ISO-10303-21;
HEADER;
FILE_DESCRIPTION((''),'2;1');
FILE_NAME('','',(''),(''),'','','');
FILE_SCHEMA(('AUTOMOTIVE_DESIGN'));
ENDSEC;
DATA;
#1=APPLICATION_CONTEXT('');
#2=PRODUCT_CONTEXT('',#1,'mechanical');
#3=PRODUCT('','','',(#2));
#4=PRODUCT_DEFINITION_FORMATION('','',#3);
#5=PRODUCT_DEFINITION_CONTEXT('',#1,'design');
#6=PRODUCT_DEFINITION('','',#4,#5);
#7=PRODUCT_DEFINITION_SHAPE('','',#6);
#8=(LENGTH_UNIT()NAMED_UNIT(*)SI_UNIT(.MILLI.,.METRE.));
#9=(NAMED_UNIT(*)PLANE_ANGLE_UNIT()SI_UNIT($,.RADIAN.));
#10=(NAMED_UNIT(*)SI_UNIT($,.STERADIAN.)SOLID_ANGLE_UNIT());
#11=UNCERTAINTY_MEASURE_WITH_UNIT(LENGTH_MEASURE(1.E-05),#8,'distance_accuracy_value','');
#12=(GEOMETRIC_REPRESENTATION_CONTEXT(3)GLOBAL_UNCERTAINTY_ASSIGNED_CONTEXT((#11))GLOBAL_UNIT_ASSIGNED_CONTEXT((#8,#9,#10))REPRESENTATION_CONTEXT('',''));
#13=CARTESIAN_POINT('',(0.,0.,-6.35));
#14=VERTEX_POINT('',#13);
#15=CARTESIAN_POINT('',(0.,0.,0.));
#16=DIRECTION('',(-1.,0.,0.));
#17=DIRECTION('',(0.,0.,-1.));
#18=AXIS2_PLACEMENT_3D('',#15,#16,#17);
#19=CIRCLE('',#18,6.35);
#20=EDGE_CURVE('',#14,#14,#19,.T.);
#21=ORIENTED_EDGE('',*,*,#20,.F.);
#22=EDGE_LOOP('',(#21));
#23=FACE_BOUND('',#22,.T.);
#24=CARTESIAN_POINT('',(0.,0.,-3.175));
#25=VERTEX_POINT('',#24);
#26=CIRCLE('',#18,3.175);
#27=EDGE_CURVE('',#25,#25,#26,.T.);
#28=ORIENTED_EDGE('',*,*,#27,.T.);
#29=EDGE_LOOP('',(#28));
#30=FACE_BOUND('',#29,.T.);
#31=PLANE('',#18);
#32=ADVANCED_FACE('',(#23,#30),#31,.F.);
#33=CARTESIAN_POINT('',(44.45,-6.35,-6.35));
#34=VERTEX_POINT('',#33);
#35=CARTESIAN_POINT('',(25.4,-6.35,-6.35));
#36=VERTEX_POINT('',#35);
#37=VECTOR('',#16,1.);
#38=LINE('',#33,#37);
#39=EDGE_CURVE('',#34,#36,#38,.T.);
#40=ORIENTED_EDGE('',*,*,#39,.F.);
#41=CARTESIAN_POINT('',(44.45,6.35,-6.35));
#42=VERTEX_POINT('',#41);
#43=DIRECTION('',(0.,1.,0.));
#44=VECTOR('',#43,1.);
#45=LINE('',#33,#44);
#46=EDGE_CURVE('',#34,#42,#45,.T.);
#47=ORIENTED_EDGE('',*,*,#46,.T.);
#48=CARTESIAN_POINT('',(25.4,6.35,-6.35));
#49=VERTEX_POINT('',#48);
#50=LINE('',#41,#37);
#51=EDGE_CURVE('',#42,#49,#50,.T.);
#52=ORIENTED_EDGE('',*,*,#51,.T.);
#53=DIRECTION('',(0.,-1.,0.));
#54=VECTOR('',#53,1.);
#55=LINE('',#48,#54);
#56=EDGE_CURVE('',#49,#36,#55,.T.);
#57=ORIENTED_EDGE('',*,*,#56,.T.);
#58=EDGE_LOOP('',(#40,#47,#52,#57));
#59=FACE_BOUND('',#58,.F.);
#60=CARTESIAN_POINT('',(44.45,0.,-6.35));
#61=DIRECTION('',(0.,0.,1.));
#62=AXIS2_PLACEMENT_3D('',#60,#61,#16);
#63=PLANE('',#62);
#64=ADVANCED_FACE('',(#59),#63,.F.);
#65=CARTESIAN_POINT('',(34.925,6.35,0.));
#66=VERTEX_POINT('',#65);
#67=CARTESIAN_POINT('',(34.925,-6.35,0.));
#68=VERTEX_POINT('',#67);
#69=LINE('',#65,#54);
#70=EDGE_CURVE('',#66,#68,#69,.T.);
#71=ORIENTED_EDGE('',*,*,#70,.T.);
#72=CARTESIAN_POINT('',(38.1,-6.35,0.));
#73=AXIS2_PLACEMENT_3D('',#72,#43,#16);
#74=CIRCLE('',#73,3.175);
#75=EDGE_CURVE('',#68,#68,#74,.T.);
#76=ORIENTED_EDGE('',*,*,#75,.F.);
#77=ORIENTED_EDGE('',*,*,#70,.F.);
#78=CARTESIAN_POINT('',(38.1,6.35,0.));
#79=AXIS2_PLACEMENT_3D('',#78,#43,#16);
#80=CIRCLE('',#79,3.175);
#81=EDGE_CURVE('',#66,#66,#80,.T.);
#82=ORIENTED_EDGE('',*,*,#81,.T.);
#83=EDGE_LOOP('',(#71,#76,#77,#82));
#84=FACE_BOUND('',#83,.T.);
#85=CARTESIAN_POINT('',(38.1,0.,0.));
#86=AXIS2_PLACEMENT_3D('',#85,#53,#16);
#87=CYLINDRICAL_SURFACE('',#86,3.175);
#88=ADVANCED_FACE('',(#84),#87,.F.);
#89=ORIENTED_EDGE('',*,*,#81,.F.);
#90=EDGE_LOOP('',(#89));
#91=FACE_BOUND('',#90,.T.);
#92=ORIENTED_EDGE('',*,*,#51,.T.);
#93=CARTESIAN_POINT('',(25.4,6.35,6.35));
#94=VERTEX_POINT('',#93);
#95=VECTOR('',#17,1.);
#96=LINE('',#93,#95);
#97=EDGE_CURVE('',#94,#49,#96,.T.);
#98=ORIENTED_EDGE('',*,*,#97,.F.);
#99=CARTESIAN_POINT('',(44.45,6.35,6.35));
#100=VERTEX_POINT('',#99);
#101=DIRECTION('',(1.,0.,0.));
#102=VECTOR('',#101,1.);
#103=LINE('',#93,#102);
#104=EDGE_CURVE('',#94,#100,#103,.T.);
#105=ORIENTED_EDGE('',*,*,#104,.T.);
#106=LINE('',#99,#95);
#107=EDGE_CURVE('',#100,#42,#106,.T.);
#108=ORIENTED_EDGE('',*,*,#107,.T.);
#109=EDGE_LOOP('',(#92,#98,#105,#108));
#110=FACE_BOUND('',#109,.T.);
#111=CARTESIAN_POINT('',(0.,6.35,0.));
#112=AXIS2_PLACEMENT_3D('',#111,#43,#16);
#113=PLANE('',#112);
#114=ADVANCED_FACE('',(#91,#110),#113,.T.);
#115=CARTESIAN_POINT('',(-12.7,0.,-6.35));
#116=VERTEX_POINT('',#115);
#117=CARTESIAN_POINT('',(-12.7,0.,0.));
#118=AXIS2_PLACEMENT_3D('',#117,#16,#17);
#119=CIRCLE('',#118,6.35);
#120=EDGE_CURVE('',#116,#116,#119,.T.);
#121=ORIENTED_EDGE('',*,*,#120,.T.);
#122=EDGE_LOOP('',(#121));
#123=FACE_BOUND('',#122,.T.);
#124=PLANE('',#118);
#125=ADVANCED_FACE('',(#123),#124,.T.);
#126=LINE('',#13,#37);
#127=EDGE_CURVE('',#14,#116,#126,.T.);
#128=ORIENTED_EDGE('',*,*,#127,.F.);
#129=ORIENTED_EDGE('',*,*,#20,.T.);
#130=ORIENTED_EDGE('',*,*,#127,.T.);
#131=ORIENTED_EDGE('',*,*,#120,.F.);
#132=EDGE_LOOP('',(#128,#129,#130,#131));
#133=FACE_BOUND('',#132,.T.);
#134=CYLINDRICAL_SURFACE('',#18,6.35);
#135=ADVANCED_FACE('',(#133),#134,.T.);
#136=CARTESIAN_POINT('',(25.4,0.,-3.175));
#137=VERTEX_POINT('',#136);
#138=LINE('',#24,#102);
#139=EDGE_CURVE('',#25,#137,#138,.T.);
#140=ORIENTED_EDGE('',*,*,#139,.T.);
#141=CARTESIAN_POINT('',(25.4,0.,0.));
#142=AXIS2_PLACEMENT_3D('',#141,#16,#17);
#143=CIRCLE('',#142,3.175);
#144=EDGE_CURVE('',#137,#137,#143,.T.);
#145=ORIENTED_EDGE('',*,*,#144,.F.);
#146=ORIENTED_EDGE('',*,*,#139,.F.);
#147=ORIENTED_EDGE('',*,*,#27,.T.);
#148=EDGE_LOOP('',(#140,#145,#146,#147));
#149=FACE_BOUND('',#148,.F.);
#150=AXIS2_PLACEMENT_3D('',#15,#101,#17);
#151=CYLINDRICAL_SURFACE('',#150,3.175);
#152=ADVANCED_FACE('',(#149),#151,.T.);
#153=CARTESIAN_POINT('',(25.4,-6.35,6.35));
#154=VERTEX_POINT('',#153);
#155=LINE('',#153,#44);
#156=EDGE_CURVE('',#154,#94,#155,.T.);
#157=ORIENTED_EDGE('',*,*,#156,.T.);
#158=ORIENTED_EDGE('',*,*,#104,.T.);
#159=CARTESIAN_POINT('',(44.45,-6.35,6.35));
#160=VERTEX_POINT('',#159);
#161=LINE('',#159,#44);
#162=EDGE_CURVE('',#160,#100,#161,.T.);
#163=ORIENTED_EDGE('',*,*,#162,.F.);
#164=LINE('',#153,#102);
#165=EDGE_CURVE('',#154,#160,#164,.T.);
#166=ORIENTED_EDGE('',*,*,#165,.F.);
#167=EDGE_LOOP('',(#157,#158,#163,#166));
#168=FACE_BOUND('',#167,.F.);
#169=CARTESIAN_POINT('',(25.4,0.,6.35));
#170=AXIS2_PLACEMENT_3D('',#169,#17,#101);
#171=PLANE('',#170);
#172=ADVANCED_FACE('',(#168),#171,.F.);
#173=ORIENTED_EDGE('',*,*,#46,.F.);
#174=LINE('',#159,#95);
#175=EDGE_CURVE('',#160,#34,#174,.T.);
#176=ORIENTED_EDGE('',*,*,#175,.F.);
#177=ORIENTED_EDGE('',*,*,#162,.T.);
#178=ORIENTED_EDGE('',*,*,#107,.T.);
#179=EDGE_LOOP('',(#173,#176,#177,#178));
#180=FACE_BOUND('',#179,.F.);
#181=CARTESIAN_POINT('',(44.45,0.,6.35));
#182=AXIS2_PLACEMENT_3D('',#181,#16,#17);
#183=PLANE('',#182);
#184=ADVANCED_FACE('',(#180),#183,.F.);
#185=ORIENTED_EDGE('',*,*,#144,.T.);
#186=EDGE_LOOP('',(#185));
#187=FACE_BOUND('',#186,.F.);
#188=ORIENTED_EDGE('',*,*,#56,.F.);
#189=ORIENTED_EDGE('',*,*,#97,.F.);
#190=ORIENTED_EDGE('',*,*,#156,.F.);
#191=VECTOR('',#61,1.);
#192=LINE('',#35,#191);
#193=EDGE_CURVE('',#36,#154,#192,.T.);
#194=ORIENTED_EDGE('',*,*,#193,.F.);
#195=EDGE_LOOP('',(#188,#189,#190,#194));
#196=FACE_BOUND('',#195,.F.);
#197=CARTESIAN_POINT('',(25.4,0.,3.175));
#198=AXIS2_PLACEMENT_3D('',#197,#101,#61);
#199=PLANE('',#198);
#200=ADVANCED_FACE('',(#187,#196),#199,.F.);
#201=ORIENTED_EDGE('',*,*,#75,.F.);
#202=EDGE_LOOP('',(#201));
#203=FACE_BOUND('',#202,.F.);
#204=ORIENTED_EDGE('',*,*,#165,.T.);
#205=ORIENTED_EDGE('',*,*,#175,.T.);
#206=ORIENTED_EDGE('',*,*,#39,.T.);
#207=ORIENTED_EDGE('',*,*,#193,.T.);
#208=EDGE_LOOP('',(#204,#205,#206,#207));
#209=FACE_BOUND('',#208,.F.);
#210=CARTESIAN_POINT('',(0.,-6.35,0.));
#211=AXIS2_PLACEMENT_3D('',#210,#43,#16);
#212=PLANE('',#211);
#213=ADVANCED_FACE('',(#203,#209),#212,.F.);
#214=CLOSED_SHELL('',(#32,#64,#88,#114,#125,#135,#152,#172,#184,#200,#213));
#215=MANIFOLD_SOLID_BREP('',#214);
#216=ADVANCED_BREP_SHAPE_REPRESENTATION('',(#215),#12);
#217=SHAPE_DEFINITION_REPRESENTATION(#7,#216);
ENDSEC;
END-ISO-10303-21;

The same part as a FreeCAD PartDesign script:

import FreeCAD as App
import Part
import Sketcher
Q = App.Units.Quantity


def add_polygon(sketch, points):
    """Adds a closed chain of lines whose ends are joined by coincident constraints."""
    first, n = sketch.GeometryCount, len(points)
    for a, b in zip(points, points[1:] + points[:1]):
        sketch.addGeometry(Part.LineSegment(App.Vector(*a, 0), App.Vector(*b, 0)), False)
    for i in range(n):
        sketch.addConstraint(Sketcher.Constraint("Coincident", first + i, 2, first + (i + 1) % n, 1))

doc = App.newDocument("Part")
body = doc.addObject("PartDesign::Body", "Body")

# Sketch on XZ plane
sketch1 = body.newObject("Sketcher::SketchObject", "Sketch")
sketch1.AttachmentSupport = (doc.getObject("XZ_Plane"), [""])
sketch1.MapMode = "FlatFace"
add_polygon(sketch1, [(25.4, -6.35), (25.4, 6.35), (44.45, 6.35), (44.45, -6.35)])  # lines 0-3
sketch1.addGeometry(Part.Circle(App.Vector(38.1, 0, 0), App.Vector(0, 0, 1), 3.175), False)  # 4
sketch1.addConstraint(Sketcher.Constraint("Vertical", 0))
sketch1.addConstraint(Sketcher.Constraint("Horizontal", 1))
sketch1.addConstraint(Sketcher.Constraint("Vertical", 2))
sketch1.addConstraint(Sketcher.Constraint("Horizontal", 3))
sketch1.addConstraint(Sketcher.Constraint("PointOnObject", 4, 3, -1))
sketch1.addConstraint(Sketcher.Constraint("Diameter", 4, Q("0.25 in")))
sketch1.addConstraint(Sketcher.Constraint("DistanceY", 0, 1, 0, 2, Q("0.5 in")))
sketch1.addConstraint(Sketcher.Constraint("DistanceX", 1, 1, 1, 2, Q("0.75 in")))
sketch1.addConstraint(Sketcher.Constraint("DistanceX", 0, 2, 4, 3, Q("0.5 in")))
sketch1.addConstraint(Sketcher.Constraint("DistanceY", -1, 1, 0, 2, Q("0.25 in")))
sketch1.addConstraint(Sketcher.Constraint("DistanceX", -1, 1, 0, 2, Q("1 in")))
pad1 = body.newObject("PartDesign::Pad", "Pad")
pad1.Profile = sketch1
pad1.Length = Q("0.5 in")
pad1.Midplane = True

# Sketch on XZ plane
sketch2 = body.newObject("Sketcher::SketchObject", "Sketch001")
sketch2.AttachmentSupport = (doc.getObject("XZ_Plane"), [""])
sketch2.MapMode = "FlatFace"
add_polygon(sketch2, [(25.4, 0), (25.4, -3.175), (0, -3.175), (0, -6.35), (-12.7, -6.35), (-12.7, 0)])  # lines 0-5
sketch2.addConstraint(Sketcher.Constraint("Vertical", 0))
sketch2.addConstraint(Sketcher.Constraint("Horizontal", 1))
sketch2.addConstraint(Sketcher.Constraint("Vertical", 2))
sketch2.addConstraint(Sketcher.Constraint("Horizontal", 3))
sketch2.addConstraint(Sketcher.Constraint("Vertical", 4))
sketch2.addConstraint(Sketcher.Constraint("Horizontal", 5))
sketch2.addConstraint(Sketcher.Constraint("PointOnObject", 1, 2, -2))
sketch2.addConstraint(Sketcher.Constraint("PointOnObject", 4, 2, -1))
sketch2.addConstraint(Sketcher.Constraint("Equal", 0, 2))
sketch2.addConstraint(Sketcher.Constraint("DistanceX", 1, 2, 1, 1, Q("1 in")))
sketch2.addConstraint(Sketcher.Constraint("DistanceX", 3, 2, 3, 1, Q("0.5 in")))
sketch2.addConstraint(Sketcher.Constraint("DistanceY", 4, 1, 4, 2, Q("0.25 in")))
revolution = body.newObject("PartDesign::Revolution", "Revolution")
revolution.Profile = sketch2
revolution.ReferenceAxis = (sketch2, ["H_Axis"])
revolution.Angle = 360

doc.recompute()
